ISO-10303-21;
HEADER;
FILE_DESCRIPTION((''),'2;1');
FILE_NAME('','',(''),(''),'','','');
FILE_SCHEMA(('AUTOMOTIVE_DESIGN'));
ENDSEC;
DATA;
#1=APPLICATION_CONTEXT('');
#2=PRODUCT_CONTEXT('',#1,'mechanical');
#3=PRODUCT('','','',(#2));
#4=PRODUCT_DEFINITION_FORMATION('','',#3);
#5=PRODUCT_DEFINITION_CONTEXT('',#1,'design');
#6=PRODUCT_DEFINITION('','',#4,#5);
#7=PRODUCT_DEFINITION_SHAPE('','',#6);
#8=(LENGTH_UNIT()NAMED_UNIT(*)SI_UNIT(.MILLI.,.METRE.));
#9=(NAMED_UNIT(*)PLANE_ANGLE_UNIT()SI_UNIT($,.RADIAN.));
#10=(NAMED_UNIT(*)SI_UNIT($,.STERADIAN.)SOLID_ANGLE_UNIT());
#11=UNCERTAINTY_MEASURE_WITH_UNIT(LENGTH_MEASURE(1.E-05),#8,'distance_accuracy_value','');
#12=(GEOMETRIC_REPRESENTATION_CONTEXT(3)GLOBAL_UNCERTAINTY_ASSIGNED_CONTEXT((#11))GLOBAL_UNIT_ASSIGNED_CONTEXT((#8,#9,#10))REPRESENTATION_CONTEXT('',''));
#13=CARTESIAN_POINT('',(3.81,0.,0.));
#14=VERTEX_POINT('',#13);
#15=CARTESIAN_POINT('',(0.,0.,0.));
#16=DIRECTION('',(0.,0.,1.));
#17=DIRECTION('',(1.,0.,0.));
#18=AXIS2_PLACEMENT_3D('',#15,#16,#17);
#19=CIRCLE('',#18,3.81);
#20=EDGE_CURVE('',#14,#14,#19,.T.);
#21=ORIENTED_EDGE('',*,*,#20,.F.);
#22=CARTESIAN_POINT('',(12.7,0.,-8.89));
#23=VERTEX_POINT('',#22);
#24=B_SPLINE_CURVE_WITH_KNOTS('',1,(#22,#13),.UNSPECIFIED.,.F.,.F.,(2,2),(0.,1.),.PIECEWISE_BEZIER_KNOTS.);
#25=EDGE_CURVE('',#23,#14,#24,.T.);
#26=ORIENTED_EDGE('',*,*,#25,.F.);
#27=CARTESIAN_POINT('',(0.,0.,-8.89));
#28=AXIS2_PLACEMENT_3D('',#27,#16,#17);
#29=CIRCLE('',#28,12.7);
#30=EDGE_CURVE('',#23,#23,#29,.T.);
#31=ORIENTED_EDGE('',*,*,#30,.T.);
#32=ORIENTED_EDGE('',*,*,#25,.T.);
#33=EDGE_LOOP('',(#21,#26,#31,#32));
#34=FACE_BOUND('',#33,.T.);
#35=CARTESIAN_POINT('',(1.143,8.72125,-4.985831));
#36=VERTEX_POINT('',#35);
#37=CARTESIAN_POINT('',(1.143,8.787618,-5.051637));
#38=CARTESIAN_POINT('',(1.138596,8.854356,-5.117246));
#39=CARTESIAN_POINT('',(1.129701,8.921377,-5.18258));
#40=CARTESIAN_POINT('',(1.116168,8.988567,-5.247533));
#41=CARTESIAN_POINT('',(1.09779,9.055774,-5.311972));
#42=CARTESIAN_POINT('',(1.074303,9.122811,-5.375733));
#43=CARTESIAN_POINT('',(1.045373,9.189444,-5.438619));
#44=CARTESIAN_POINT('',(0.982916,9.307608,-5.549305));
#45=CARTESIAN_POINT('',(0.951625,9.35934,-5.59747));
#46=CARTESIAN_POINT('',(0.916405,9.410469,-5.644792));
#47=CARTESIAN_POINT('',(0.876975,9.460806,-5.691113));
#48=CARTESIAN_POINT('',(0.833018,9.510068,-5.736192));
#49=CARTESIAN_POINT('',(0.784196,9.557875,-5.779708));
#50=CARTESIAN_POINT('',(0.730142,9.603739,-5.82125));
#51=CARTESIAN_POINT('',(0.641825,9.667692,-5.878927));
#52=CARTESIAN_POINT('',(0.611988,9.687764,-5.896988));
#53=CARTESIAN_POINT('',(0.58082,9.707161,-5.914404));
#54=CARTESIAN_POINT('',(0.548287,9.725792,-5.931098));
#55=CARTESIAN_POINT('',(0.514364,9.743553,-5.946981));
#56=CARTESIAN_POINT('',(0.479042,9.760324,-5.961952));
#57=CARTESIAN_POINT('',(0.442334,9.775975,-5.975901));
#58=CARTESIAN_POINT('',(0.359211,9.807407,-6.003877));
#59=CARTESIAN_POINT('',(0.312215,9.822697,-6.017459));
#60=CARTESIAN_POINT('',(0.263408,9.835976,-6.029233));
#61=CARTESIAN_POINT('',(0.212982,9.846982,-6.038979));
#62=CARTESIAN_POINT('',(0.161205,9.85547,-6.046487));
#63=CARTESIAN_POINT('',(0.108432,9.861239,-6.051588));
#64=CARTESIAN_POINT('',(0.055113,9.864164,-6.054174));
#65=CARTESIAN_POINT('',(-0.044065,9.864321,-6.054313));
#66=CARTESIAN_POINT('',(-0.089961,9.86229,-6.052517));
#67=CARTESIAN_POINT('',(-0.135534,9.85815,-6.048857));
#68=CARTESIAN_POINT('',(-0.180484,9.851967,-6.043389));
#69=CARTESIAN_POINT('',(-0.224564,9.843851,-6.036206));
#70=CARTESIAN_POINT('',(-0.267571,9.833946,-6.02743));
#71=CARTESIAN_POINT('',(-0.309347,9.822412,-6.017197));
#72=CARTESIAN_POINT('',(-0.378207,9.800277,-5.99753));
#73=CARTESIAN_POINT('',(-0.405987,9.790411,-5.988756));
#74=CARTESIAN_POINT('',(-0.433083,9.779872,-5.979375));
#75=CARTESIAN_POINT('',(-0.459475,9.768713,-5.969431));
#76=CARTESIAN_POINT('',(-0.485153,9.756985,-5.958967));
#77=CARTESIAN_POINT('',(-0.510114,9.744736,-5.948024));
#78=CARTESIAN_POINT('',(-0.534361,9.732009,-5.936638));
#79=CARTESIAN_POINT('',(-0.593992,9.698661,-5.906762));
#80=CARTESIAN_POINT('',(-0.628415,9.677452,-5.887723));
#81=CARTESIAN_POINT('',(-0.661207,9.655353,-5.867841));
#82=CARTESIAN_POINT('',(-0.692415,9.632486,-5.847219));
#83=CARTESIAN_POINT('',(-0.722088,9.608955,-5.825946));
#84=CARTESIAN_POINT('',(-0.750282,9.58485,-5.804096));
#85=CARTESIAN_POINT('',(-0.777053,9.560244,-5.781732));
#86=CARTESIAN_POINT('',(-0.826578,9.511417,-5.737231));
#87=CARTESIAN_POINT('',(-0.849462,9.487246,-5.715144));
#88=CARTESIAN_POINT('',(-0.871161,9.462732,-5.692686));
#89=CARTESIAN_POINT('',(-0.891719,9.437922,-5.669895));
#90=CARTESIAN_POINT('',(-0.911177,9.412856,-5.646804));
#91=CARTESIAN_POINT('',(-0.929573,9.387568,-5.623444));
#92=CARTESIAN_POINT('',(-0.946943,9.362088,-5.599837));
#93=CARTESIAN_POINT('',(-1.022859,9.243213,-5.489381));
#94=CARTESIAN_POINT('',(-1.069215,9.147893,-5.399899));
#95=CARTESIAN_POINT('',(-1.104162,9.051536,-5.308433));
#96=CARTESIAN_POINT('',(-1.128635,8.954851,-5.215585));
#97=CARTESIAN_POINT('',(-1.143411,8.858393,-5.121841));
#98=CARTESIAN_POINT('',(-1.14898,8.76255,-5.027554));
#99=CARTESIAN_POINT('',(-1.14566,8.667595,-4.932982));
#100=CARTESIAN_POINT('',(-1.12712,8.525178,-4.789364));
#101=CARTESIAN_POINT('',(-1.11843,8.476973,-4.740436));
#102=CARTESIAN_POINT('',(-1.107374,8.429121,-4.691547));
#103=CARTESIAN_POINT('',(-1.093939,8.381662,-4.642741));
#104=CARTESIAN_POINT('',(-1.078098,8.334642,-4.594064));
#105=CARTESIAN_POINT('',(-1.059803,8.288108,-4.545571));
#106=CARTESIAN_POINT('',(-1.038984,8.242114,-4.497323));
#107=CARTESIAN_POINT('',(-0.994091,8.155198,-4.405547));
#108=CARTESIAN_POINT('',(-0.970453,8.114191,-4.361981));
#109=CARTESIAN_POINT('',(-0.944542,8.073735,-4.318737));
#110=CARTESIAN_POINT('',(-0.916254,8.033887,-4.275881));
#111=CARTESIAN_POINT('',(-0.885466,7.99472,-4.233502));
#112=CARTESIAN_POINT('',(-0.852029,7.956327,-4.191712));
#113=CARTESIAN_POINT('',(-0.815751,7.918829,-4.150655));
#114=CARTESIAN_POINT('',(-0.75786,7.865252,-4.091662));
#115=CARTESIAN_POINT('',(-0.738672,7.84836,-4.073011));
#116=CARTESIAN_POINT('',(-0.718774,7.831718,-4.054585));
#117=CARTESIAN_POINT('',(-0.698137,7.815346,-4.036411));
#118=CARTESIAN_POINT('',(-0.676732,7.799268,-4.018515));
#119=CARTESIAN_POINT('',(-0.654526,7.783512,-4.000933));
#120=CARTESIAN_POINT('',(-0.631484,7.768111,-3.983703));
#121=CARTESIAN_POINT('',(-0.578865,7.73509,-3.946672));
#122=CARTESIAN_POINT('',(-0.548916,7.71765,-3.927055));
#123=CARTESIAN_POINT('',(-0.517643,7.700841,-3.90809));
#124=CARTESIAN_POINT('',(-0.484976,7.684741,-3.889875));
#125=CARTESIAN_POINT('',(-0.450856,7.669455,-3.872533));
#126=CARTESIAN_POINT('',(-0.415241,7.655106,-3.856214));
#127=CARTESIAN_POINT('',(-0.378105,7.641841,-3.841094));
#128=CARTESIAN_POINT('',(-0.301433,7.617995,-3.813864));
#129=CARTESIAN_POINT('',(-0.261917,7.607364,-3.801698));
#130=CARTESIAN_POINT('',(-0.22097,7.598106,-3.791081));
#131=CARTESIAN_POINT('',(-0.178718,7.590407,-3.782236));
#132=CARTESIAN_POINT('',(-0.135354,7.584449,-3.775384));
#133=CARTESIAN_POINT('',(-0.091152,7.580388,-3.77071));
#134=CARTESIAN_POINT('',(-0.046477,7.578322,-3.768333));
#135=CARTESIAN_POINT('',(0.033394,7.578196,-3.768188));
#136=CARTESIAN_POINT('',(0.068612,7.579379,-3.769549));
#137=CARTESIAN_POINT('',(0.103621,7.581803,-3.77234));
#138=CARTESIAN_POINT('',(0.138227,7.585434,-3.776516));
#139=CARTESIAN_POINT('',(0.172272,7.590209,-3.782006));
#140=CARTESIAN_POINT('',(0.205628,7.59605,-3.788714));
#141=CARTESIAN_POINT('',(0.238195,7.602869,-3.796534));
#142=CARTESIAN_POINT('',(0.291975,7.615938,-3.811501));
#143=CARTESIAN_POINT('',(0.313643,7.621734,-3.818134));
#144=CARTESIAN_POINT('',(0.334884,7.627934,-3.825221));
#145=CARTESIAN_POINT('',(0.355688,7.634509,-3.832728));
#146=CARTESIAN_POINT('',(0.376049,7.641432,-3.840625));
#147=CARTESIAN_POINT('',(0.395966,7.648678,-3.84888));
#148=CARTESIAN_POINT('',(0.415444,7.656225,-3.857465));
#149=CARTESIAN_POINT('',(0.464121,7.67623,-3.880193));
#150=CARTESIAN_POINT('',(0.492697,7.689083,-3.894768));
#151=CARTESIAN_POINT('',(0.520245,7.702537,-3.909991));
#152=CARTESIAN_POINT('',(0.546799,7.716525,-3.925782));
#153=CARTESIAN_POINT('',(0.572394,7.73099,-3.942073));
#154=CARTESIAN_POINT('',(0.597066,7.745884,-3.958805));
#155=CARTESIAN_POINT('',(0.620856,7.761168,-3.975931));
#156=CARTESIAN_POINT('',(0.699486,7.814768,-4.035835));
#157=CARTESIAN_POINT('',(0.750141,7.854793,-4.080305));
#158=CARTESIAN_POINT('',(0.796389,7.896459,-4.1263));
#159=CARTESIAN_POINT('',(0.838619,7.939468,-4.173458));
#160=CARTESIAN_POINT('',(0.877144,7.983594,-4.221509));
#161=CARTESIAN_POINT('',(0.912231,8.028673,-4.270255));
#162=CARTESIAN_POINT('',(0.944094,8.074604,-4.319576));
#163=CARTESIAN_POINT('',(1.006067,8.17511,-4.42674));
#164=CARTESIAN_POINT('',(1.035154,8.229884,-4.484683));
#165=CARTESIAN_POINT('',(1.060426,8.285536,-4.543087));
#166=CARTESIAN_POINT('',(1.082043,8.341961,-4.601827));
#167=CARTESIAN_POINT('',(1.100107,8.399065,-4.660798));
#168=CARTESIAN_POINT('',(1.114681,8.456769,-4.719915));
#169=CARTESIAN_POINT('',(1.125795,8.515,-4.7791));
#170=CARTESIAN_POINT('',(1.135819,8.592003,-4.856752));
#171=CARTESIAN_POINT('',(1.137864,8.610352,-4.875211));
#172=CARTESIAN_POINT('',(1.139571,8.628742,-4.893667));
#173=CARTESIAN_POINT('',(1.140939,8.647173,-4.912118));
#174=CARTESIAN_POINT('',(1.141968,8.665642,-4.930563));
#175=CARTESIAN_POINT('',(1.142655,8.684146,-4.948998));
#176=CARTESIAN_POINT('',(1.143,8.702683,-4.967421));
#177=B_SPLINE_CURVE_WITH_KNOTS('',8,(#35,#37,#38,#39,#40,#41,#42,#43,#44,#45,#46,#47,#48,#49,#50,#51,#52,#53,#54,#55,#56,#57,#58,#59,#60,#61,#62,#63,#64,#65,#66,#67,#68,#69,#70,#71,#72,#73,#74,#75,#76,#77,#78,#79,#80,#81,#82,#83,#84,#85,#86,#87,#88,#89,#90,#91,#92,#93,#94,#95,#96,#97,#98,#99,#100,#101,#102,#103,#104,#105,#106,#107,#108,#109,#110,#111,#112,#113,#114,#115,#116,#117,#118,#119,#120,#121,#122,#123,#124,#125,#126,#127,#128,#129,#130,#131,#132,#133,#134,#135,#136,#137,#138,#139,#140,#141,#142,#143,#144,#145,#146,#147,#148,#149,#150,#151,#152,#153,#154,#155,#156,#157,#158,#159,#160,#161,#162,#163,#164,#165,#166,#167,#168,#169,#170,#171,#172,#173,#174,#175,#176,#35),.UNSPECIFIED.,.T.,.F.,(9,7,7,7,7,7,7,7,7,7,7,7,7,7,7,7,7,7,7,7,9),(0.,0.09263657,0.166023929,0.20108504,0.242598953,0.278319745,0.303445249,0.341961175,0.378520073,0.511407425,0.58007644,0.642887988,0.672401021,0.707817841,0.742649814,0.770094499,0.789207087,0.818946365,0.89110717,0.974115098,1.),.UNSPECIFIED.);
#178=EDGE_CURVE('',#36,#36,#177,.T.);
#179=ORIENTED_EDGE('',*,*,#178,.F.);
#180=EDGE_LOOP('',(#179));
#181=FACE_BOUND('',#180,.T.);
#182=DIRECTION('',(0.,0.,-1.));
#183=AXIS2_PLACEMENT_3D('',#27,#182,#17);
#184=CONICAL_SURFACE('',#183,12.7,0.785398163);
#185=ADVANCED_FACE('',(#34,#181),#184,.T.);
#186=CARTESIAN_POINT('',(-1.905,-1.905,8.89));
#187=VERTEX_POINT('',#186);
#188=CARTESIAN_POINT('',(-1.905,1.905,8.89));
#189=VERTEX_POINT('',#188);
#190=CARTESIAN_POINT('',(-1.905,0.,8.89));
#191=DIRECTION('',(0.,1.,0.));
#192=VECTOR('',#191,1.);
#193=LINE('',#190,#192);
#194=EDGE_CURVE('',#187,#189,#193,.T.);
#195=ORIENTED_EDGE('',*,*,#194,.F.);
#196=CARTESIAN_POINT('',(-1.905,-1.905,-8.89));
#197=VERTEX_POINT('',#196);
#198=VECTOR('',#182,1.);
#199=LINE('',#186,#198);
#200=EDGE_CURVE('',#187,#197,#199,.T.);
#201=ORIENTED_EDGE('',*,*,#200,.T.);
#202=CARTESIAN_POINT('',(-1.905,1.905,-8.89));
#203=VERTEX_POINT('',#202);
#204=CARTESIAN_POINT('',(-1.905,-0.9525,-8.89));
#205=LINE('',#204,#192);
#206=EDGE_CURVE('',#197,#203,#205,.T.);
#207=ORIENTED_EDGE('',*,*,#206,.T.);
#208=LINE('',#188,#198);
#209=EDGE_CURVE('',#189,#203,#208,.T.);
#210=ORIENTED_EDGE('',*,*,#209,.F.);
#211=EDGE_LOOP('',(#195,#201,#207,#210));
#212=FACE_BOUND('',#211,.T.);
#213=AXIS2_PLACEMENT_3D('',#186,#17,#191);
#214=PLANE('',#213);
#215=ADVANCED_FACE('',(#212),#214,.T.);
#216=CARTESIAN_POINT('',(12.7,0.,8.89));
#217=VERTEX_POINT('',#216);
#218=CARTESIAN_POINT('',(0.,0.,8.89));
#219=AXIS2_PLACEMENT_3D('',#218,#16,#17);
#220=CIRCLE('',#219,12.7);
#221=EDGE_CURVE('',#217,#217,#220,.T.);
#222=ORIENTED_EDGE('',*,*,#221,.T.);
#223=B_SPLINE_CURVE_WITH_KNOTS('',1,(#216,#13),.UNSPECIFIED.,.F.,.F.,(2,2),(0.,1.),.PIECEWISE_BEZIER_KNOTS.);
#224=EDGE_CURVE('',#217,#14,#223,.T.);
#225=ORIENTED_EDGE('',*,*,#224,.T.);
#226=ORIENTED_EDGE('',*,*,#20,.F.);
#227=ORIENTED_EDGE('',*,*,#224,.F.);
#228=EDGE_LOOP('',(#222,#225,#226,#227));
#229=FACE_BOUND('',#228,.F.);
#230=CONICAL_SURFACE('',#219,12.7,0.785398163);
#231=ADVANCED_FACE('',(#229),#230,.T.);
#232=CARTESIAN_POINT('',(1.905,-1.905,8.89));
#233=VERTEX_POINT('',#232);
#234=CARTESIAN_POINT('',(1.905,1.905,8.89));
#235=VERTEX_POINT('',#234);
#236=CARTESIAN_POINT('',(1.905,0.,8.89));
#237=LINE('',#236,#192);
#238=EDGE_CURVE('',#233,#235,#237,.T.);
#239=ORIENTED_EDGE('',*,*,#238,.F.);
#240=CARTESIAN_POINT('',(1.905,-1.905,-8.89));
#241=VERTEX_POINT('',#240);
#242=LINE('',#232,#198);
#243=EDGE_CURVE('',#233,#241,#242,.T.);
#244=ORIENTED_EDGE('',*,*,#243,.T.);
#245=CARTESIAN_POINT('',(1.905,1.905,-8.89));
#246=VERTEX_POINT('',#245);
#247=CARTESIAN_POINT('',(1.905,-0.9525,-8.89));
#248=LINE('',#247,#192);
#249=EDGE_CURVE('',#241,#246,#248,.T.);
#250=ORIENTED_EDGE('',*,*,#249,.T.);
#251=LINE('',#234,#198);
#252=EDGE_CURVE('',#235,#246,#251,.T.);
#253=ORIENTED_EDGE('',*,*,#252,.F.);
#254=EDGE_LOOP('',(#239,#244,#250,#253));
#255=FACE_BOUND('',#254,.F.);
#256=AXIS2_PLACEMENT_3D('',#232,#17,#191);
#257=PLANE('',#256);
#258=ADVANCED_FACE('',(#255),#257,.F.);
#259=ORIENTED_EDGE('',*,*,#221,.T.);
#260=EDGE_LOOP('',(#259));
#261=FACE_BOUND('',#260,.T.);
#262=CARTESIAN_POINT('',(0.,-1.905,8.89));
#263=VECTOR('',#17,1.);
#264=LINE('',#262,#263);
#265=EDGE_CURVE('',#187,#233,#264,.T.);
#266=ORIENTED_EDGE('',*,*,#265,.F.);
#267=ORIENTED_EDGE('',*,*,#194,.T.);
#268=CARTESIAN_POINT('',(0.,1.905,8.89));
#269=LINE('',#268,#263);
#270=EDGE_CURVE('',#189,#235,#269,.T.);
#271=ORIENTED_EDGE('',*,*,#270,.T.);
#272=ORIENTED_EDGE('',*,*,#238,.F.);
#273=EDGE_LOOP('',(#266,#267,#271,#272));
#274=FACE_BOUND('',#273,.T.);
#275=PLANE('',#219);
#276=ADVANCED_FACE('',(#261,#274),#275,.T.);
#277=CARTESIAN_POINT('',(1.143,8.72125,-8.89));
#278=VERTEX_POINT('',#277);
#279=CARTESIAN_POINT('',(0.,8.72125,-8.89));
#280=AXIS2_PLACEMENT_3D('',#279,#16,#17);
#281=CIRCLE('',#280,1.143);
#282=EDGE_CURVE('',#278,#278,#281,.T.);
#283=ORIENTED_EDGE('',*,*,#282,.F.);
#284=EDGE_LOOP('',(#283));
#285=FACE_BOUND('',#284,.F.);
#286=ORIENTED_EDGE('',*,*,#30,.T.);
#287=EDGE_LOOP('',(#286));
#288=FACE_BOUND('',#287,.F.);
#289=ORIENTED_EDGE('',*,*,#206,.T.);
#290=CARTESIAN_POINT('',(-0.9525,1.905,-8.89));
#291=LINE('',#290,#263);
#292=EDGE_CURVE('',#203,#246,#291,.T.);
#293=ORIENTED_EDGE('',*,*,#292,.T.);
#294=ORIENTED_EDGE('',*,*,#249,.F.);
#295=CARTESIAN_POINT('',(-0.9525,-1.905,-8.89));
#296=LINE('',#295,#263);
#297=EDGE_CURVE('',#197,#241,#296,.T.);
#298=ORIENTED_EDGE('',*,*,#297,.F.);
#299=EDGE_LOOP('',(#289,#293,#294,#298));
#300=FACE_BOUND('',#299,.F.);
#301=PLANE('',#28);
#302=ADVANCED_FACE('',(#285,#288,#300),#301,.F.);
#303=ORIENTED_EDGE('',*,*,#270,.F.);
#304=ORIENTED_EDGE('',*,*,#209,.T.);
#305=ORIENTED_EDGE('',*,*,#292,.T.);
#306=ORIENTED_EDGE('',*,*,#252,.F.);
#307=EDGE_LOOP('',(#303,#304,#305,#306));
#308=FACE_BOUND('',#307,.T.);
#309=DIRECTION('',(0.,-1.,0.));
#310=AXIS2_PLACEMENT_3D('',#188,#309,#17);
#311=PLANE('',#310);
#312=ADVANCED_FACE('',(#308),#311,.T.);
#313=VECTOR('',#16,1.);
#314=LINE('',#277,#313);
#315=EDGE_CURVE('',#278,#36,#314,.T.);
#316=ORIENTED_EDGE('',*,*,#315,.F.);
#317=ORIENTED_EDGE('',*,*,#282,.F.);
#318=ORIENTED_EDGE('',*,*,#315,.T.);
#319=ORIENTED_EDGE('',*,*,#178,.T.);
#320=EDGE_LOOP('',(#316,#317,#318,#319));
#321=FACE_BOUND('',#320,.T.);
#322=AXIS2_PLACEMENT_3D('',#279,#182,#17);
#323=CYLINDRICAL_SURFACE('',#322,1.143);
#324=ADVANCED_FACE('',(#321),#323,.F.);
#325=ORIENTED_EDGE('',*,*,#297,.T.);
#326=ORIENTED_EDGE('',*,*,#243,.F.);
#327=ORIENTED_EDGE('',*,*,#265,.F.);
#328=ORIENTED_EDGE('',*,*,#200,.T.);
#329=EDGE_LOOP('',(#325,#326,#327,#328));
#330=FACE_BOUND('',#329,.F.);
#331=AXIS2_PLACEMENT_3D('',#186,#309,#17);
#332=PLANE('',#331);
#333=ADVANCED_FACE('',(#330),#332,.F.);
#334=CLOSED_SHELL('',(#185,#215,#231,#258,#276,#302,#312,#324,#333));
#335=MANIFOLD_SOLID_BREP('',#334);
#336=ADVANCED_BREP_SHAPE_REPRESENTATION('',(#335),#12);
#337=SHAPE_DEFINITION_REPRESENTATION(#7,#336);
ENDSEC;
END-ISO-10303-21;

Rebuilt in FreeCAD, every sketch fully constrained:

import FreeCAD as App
import Part
import Sketcher
from FreeCAD import Vector
Q = App.Units.Quantity

doc = App.newDocument("Part")
body = doc.addObject("PartDesign::Body", "Body")

sketch1 = body.newObject("Sketcher::SketchObject", "Sketch")
sketch1.AttachmentSupport = (doc.getObject("XY_Plane"), [""])
sketch1.MapMode = "FlatFace"
sketch1.AttachmentOffset = App.Placement(Vector(0, 0, -0.35 * 25.4), App.Rotation())
sketch1.addGeometry(Part.Circle(Vector(0, 0, 0), Vector(0, 0, 1), 13), False)
sketch1.addConstraint(Sketcher.Constraint("Coincident", 0, 3, -1, 1))
sketch1.addConstraint(Sketcher.Constraint("Diameter", 0, Q("1 in")))

sketch2 = body.newObject("Sketcher::SketchObject", "Sketch001")
sketch2.AttachmentSupport = (doc.getObject("XY_Plane"), [""])
sketch2.MapMode = "FlatFace"
sketch2.addGeometry(Part.Circle(Vector(0, 0, 0), Vector(0, 0, 1), 3.8), False)
sketch2.addConstraint(Sketcher.Constraint("Coincident", 0, 3, -1, 1))
sketch2.addConstraint(Sketcher.Constraint("Diameter", 0, Q("0.3 in")))

additiveloft = body.newObject("PartDesign::AdditiveLoft", "AdditiveLoft")
additiveloft.Profile = sketch1
additiveloft.Sections = [sketch2]

sketch3 = body.newObject("Sketcher::SketchObject", "Sketch002")
sketch3.AttachmentSupport = (doc.getObject("XY_Plane"), [""])
sketch3.MapMode = "FlatFace"
sketch3.AttachmentOffset = App.Placement(Vector(0, 0, 0.35 * 25.4), App.Rotation())
sketch3.addGeometry(Part.Circle(Vector(0, 0, 0), Vector(0, 0, 1), 13), False)
sketch3.addConstraint(Sketcher.Constraint("Coincident", 0, 3, -1, 1))
sketch3.addConstraint(Sketcher.Constraint("Diameter", 0, Q("1 in")))

sketch4 = body.newObject("Sketcher::SketchObject", "Sketch003")
sketch4.AttachmentSupport = (doc.getObject("XY_Plane"), [""])
sketch4.MapMode = "FlatFace"
sketch4.addGeometry(Part.Circle(Vector(0, 0, 0), Vector(0, 0, 1), 3.8), False)
sketch4.addConstraint(Sketcher.Constraint("Coincident", 0, 3, -1, 1))
sketch4.addConstraint(Sketcher.Constraint("Diameter", 0, Q("0.3 in")))

additiveloft2 = body.newObject("PartDesign::AdditiveLoft", "AdditiveLoft001")
additiveloft2.Profile = sketch3
additiveloft2.Sections = [sketch4]

sketch5 = body.newObject("Sketcher::SketchObject", "Sketch004")
sketch5.AttachmentSupport = (doc.getObject("XY_Plane"), [""])
sketch5.MapMode = "FlatFace"
sketch5.AttachmentOffset = App.Placement(Vector(0, 0, 0.35 * 25.4), App.Rotation())
sketch5.addGeometry(Part.LineSegment(Vector(-1.9, 1.9, 0), Vector(-1.9, -1.9, 0)), False)
sketch5.addGeometry(Part.LineSegment(Vector(-1.9, -1.9, 0), Vector(1.9, -1.9, 0)), False)
sketch5.addGeometry(Part.LineSegment(Vector(1.9, -1.9, 0), Vector(1.9, 1.9, 0)), False)
sketch5.addGeometry(Part.LineSegment(Vector(1.9, 1.9, 0), Vector(-1.9, 1.9, 0)), False)
sketch5.addConstraint(Sketcher.Constraint("Coincident", 0, 2, 1, 1))
sketch5.addConstraint(Sketcher.Constraint("Coincident", 1, 2, 2, 1))
sketch5.addConstraint(Sketcher.Constraint("Coincident", 2, 2, 3, 1))
sketch5.addConstraint(Sketcher.Constraint("Coincident", 3, 2, 0, 1))
sketch5.addConstraint(Sketcher.Constraint("Vertical", 0))
sketch5.addConstraint(Sketcher.Constraint("Horizontal", 1))
sketch5.addConstraint(Sketcher.Constraint("Vertical", 2))
sketch5.addConstraint(Sketcher.Constraint("Horizontal", 3))
sketch5.addConstraint(Sketcher.Constraint("Symmetric", 0, 2, 2, 2, -1, 1))
sketch5.addConstraint(Sketcher.Constraint("Equal", 3, 0))
sketch5.addConstraint(Sketcher.Constraint("DistanceX", 1, 1, 1, 2, Q("0.15 in")))
pocket1 = body.newObject("PartDesign::Pocket", "Pocket")
pocket1.Profile = sketch5
pocket1.Length = Q("1 in")

sketch6 = body.newObject("Sketcher::SketchObject", "Sketch005")
sketch6.AttachmentSupport = (doc.getObject("XY_Plane"), [""])
sketch6.MapMode = "FlatFace"
sketch6.AttachmentOffset = App.Placement(Vector(0, 0, -0.35 * 25.4), App.Rotation())
sketch6.addGeometry(Part.Circle(Vector(0, 8.7, 0), Vector(0, 0, 1), 1.1), False)
sketch6.addConstraint(Sketcher.Constraint("PointOnObject", 0, 3, -2))
sketch6.addConstraint(Sketcher.Constraint("Diameter", 0, Q("0.09 in")))
sketch6.addConstraint(Sketcher.Constraint("DistanceY", -1, 1, 0, 3, Q("8.72125 mm")))
pocket2 = body.newObject("PartDesign::Pocket", "Pocket001")
pocket2.Profile = sketch6
pocket2.Length = Q("0.27 in")
pocket2.Reversed = True

doc.recompute()
